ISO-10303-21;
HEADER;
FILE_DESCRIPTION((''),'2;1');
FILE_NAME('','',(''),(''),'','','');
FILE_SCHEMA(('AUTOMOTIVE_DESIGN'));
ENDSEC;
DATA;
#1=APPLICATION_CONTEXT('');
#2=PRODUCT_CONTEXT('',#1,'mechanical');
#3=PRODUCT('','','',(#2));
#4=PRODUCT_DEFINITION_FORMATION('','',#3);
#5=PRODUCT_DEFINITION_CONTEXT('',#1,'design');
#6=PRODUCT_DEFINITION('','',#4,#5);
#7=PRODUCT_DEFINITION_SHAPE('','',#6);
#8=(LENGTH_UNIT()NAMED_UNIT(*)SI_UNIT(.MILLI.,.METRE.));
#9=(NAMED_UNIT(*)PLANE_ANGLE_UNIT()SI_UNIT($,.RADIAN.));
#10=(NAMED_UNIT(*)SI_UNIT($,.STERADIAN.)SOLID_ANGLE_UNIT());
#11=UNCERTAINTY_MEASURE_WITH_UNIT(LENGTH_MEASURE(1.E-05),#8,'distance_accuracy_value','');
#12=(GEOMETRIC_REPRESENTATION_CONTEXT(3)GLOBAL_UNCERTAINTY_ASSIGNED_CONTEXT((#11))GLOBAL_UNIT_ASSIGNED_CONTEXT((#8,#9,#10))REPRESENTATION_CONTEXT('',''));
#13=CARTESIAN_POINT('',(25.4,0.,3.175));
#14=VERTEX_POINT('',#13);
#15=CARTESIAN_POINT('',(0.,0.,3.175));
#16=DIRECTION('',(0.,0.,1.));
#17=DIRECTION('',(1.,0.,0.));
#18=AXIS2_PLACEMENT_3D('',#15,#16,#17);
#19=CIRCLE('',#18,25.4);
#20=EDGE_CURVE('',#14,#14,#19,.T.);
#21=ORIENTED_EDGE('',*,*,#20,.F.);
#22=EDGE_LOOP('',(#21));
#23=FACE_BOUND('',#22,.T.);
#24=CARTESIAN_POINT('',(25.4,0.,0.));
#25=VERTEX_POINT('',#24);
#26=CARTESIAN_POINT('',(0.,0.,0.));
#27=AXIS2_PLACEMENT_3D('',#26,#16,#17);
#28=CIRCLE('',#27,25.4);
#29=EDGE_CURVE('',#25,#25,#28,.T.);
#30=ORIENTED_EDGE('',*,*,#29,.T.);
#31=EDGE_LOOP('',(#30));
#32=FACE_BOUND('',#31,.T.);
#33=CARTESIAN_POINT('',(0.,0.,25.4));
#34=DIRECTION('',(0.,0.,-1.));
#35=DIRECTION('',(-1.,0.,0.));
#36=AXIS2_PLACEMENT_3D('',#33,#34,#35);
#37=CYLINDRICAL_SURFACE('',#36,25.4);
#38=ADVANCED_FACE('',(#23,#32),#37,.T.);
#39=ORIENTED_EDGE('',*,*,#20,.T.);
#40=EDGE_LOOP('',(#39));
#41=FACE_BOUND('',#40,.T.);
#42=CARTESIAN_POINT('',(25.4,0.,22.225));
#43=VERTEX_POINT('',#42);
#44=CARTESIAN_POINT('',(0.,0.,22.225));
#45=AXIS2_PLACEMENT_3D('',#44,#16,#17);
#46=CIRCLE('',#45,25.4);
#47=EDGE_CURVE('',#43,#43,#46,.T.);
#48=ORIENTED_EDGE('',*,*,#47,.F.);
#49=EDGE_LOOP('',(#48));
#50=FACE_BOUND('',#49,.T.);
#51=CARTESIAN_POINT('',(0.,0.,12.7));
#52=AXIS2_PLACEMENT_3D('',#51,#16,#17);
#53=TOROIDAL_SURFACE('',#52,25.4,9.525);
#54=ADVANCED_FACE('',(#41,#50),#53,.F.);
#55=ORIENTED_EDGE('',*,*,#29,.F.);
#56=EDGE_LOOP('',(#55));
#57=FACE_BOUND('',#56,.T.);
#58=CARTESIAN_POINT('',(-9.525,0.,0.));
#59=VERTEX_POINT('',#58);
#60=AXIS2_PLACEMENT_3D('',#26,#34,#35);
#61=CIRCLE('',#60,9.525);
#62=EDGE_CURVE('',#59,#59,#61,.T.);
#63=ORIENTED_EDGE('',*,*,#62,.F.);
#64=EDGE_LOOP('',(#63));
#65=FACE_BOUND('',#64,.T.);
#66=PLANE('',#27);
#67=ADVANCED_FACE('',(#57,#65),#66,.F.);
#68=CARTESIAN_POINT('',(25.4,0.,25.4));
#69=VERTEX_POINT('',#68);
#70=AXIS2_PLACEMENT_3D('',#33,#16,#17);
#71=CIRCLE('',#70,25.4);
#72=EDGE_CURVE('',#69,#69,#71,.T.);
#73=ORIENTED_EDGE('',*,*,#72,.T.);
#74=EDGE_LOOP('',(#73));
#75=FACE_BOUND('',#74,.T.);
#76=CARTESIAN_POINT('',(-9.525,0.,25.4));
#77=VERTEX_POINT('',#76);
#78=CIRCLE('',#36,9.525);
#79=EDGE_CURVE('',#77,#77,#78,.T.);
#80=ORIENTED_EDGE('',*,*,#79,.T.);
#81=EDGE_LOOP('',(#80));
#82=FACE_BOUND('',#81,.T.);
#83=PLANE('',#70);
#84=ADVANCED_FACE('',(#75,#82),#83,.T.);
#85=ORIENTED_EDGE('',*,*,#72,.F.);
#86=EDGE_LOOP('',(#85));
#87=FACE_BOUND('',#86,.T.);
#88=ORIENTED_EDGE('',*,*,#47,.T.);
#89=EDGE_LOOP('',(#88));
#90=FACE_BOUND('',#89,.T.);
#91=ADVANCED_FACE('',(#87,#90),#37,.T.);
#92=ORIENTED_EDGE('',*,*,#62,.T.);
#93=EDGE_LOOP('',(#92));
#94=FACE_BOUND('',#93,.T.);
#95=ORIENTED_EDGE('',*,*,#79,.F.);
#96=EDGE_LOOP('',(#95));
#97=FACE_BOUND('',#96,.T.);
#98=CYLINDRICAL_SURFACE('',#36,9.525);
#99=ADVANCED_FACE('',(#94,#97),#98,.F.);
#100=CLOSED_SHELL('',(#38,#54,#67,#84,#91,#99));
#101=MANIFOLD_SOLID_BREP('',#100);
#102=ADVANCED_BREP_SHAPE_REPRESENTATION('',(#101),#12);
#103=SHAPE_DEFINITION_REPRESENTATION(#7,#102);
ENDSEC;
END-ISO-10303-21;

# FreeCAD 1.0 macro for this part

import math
import FreeCAD as App
import Part
import Sketcher
Q = App.Units.Quantity

doc = App.newDocument("Part")
params = doc.addObject("Spreadsheet::Sheet", "Params")
for row, (alias, value) in enumerate([
    ("sketch1_diameter", "2 in"),
    ("pad1_length", "1 in"),
    ("sketch2_radius", "0.375 in"),
    ("groove_angle", "360 deg"),
    ("sketch3_diameter", "0.75 in"),
    ("pocket1_length", "1 in"),
], start=1):
    params.set(f"A{row}", alias)
    params.set(f"B{row}", "=" + value)
    params.setAlias(f"B{row}", alias)

body = doc.addObject("PartDesign::Body", "Body")

sketch1 = doc.addObject("Sketcher::SketchObject", "Sketch")
body.addObject(sketch1)
sketch1.AttachmentSupport = (doc.XY_Plane, [""])
sketch1.MapMode = "FlatFace"
sketch1.addGeometry(Part.Circle(App.Vector(0, 0, 0), App.Vector(0, 0, 1), 25), False)
sketch1.addConstraint([
    Sketcher.Constraint("Coincident", 0, 3, -1, 1),
    Sketcher.Constraint("Diameter", 0, Q("2 in")),
])
sketch1.setExpression("Constraints[1]", "Params.sketch1_diameter")
pad1 = doc.addObject("PartDesign::Pad", "Pad")
body.addObject(pad1)
pad1.Profile = sketch1
pad1.setExpression("Length", "Params.pad1_length")

sketch2 = doc.addObject("Sketcher::SketchObject", "Sketch001")
body.addObject(sketch2)
sketch2.AttachmentSupport = (doc.XZ_Plane, [""])
sketch2.MapMode = "FlatFace"
sketch2.addGeometry([
    Part.LineSegment(App.Vector(25, 22, 0), App.Vector(25, 3, 0)),
    Part.ArcOfCircle(Part.Circle(App.Vector(25, 13, 0), App.Vector(0, 0, 1), 10), math.radians(90), math.radians(270)),
], False)
sketch2.addConstraint([
    Sketcher.Constraint("Coincident", 0, 1, 1, 1),
    Sketcher.Constraint("Coincident", 1, 2, 0, 2),
    Sketcher.Constraint("Vertical", 0),
    Sketcher.Constraint("Vertical", 1, 3, 0, 1),
    Sketcher.Constraint("DistanceX", -1, 1, 1, 3, Q("1 in")),
    Sketcher.Constraint("Radius", 1, Q("0.375 in")),
    Sketcher.Constraint("DistanceY", -1, 1, 1, 3, Q("0.5 in")),
])
sketch2.setExpression("Constraints[5]", "Params.sketch2_radius")
groove = doc.addObject("PartDesign::Groove", "Groove")
body.addObject(groove)
groove.Profile = sketch2
groove.ReferenceAxis = (sketch2, ["V_Axis"])
groove.setExpression("Angle", "Params.groove_angle")

sketch3 = doc.addObject("Sketcher::SketchObject", "Sketch002")
body.addObject(sketch3)
sketch3.AttachmentSupport = (doc.XY_Plane, [""])
sketch3.MapMode = "FlatFace"
sketch3.addGeometry(Part.Circle(App.Vector(0, 0, 0), App.Vector(0, 0, 1), 10), False)
sketch3.addConstraint([
    Sketcher.Constraint("Coincident", 0, 3, -1, 1),
    Sketcher.Constraint("Diameter", 0, Q("0.75 in")),
])
sketch3.setExpression("Constraints[1]", "Params.sketch3_diameter")
pocket1 = doc.addObject("PartDesign::Pocket", "Pocket")
body.addObject(pocket1)
pocket1.Profile = sketch3
pocket1.setExpression("Length", "Params.pocket1_length")
pocket1.Reversed = True

doc.recompute()
